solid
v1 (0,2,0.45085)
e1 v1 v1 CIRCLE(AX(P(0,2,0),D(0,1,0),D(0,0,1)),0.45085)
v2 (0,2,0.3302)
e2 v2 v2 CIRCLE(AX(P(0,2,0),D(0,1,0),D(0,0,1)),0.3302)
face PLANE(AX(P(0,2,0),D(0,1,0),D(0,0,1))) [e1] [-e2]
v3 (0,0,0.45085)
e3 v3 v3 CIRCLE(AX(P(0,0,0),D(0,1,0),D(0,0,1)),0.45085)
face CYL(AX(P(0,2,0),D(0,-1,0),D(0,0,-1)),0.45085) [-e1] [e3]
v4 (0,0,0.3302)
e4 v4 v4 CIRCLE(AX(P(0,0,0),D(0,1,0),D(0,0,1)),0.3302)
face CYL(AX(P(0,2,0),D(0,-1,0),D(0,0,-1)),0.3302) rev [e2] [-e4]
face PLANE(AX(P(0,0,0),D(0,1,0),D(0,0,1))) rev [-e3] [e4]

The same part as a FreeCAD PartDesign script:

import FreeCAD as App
import Part
import Sketcher

V = App.Vector

doc = App.newDocument("Part")
params = doc.addObject("Spreadsheet::Sheet", "Params")
for row, (alias, value) in enumerate([
    ("pad1_length", "2 mm"),
], start=1):
    params.set(f"A{row}", alias)
    params.set(f"B{row}", "=" + value)
    params.setAlias(f"B{row}", alias)

body = doc.addObject("PartDesign::Body", "Body")

# Sketch on XZ plane
sketch1 = body.newObject("Sketcher::SketchObject", "Sketch")
sketch1.AttachmentSupport = (doc.getObject("XZ_Plane"), [""])
sketch1.MapMode = "FlatFace"
sketch1.addGeometry(Part.Circle(V(0, 0, 0), V(0, 0, 1), 0.45), False)
sketch1.addGeometry(Part.Circle(V(0, 0, 0), V(0, 0, 1), 0.33), False)
sketch1.addConstraint(Sketcher.Constraint("Coincident", 0, 3, -1, 1))
sketch1.addConstraint(Sketcher.Constraint("Coincident", 1, 3, -1, 1))
sketch1.addConstraint(Sketcher.Constraint("Diameter", 0, 0.9017))
sketch1.addConstraint(Sketcher.Constraint("Diameter", 1, 0.6604))
pad1 = body.newObject("PartDesign::Pad", "Pad")
pad1.Profile = sketch1
pad1.setExpression("Length", "Params.pad1_length")
pad1.Reversed = True

doc.recompute()
